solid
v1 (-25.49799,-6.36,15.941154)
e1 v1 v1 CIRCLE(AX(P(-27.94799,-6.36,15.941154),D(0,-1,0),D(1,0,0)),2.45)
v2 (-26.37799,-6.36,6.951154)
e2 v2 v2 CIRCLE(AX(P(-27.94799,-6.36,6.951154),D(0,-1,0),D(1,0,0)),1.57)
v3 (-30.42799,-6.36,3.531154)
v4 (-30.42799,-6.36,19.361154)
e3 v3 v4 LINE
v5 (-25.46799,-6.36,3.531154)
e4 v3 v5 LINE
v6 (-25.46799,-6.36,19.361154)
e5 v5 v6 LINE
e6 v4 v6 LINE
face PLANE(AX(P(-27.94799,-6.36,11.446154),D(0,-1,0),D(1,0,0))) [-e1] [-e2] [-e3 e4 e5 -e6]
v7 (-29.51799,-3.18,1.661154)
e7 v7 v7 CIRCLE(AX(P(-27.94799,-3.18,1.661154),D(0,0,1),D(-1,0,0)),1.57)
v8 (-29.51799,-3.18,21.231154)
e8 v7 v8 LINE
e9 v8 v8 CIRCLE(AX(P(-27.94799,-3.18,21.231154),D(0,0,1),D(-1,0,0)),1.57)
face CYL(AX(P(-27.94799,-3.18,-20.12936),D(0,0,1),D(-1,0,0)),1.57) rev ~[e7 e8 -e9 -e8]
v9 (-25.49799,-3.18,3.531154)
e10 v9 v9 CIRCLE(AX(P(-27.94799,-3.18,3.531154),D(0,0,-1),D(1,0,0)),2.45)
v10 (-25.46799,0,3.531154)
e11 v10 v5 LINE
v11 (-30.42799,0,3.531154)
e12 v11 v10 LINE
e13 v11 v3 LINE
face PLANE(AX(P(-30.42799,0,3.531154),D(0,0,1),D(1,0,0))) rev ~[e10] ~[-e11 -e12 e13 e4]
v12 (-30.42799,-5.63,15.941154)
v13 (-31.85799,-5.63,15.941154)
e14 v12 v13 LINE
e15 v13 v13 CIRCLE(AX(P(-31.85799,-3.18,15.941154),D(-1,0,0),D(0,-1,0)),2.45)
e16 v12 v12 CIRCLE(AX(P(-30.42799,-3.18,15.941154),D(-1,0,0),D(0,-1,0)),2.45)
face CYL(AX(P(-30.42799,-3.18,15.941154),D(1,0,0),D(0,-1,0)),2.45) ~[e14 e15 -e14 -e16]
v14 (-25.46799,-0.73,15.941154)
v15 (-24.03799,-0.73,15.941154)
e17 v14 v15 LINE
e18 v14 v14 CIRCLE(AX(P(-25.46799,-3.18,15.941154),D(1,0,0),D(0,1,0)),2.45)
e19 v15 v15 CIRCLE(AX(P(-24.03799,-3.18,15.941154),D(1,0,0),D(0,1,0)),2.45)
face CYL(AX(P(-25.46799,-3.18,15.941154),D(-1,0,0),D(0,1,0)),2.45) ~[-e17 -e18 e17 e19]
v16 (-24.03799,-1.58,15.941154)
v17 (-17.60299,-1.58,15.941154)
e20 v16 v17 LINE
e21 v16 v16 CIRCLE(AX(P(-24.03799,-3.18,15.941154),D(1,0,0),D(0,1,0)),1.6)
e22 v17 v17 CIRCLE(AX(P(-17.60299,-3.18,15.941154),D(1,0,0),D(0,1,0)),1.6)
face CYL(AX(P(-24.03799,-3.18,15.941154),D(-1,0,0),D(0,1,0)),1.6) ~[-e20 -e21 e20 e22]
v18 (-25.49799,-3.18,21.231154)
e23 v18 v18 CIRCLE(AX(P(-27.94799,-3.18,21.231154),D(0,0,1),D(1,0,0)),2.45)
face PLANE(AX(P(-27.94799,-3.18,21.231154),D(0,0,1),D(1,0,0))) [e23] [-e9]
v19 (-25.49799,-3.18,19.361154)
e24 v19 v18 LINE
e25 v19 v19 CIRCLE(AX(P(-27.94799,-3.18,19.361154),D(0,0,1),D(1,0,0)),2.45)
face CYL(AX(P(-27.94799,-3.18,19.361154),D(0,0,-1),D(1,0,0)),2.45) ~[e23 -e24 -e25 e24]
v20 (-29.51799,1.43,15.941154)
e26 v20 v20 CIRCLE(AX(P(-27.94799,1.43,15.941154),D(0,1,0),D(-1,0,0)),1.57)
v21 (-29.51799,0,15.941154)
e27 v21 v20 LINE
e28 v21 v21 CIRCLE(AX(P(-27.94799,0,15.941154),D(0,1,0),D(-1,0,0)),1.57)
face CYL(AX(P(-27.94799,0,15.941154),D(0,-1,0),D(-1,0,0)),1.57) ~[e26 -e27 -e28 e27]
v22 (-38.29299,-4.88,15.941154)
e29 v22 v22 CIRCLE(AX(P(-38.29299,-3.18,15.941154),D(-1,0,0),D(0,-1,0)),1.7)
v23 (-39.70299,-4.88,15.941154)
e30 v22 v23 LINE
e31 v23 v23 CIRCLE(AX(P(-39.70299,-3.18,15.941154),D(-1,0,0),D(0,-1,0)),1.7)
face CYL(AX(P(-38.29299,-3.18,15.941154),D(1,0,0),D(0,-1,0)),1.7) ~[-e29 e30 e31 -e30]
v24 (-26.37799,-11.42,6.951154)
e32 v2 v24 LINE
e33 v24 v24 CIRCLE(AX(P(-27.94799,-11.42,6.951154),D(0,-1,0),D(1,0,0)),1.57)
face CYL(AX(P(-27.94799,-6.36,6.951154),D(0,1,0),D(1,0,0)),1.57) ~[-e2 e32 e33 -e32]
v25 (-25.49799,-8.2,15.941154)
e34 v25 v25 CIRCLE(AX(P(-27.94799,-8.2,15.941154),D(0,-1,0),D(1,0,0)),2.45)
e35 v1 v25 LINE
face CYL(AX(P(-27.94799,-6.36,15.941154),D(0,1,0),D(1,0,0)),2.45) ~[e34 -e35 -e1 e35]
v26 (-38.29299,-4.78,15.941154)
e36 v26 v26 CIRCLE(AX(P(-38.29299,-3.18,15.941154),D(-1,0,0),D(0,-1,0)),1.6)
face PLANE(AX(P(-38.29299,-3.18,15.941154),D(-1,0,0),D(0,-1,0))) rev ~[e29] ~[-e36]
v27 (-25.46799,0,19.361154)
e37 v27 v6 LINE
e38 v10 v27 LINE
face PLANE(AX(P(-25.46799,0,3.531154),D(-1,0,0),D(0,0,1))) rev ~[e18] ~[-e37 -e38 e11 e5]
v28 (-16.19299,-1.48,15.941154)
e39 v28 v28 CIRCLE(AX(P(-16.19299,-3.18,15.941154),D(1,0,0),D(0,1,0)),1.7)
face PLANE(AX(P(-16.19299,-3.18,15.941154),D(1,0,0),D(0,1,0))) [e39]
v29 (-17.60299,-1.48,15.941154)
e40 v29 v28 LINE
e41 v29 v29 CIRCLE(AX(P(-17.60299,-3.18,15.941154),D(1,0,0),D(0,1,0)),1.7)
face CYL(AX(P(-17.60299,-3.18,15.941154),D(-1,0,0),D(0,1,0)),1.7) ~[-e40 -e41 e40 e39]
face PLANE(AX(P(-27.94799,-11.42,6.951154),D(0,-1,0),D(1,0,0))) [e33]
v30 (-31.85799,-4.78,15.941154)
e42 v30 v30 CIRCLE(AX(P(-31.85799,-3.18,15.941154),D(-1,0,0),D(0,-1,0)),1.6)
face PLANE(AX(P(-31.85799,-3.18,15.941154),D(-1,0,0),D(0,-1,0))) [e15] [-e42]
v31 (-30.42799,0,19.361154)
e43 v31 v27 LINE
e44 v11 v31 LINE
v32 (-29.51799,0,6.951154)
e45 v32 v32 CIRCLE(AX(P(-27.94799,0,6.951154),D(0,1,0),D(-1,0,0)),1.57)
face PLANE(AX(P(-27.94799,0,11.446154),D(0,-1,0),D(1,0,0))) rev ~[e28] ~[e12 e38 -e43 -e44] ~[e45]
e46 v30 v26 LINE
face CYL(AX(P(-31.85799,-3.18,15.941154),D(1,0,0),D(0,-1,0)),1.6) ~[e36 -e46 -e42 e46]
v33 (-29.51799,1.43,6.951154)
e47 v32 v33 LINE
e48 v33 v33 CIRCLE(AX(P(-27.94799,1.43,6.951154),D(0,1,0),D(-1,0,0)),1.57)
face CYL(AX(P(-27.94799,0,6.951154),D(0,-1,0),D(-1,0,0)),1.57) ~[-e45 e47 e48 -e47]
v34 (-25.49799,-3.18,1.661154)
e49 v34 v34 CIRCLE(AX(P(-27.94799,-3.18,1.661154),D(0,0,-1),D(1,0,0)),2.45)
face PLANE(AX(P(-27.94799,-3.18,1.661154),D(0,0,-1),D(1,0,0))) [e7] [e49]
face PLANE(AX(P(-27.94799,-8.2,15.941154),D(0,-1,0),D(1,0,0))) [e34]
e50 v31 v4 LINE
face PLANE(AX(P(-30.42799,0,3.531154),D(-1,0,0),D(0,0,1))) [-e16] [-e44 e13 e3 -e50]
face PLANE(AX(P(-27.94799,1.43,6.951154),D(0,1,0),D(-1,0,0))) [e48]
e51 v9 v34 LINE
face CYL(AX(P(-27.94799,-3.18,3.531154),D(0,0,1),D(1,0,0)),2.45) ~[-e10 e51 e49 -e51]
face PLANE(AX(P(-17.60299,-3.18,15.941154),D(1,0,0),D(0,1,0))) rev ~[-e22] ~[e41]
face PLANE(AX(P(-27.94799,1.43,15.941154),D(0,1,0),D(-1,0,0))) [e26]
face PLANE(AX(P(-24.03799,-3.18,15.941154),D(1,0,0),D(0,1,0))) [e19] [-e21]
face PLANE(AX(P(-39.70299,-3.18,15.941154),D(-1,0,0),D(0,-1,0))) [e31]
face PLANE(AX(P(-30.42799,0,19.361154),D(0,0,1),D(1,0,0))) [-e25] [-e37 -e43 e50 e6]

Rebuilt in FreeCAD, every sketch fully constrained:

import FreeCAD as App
import Part
import Sketcher
from FreeCAD import Vector


def add_polygon(sketch, points):
    """Adds a closed chain of lines whose ends are joined by coincident constraints."""
    first, n = sketch.GeometryCount, len(points)
    for a, b in zip(points, points[1:] + points[:1]):
        sketch.addGeometry(Part.LineSegment(App.Vector(*a, 0), App.Vector(*b, 0)), False)
    for i in range(n):
        sketch.addConstraint(Sketcher.Constraint("Coincident", first + i, 2, first + (i + 1) % n, 1))

doc = App.newDocument("Part")
params = doc.addObject("Spreadsheet::Sheet", "Params")
for row, (alias, value) in enumerate([
    ("sketch1_width", "4.96 mm"),
    ("sketch1_height", "15.83 mm"),
    ("pad1_length", "6.36 mm"),
    ("sketch2_diameter", "4.9 mm"),
    ("pad2_length", "1.84 mm"),
    ("sketch3_diameter", "4.9 mm"),
    ("pad3_length", "1.87 mm"),
    ("sketch4_diameter", "4.9 mm"),
    ("pad4_length", "1.87 mm"),
    ("sketch5_diameter", "3.14 mm"),
    ("hole_diameter", "3.14 mm"),
    ("sketch6_diameter", "4.9 mm"),
    ("pad5_length", "1.43 mm"),
    ("sketch7_diameter", "4.9 mm"),
    ("pad6_length", "1.43 mm"),
    ("sketch8_diameter", "3.14 mm"),
    ("pad7_length", "5.06 mm"),
    ("sketch9_diameter", "3.14 mm"),
    ("pad8_length", "1.43 mm"),
    ("sketch10_diameter", "3.2 mm"),
    ("pad9_length", "6.435 mm"),
    ("sketch11_diameter", "3.4 mm"),
    ("pad10_length", "1.41 mm"),
    ("sketch12_diameter", "3.2 mm"),
    ("pad11_length", "6.435 mm"),
    ("sketch13_diameter", "3.4 mm"),
    ("pad12_length", "1.41 mm"),
], start=1):
    params.set(f"A{row}", alias)
    params.set(f"B{row}", "=" + value)
    params.setAlias(f"B{row}", alias)

body = doc.addObject("PartDesign::Body", "Body")

# Sketch on XZ plane
sketch1 = doc.addObject("Sketcher::SketchObject", "Sketch")
body.addObject(sketch1)
sketch1.AttachmentSupport = (doc.XZ_Plane, [""])
sketch1.MapMode = "FlatFace"
add_polygon(sketch1, [(-30.4, 19.4), (-30.4, 3.5), (-25.5, 3.5), (-25.5, 19.4)])  # lines 0-3
sketch1.addConstraint([
    Sketcher.Constraint("Vertical", 0),
    Sketcher.Constraint("Horizontal", 1),
    Sketcher.Constraint("Vertical", 2),
    Sketcher.Constraint("Horizontal", 3),
    Sketcher.Constraint("DistanceX", 1, 1, 1, 2, 4.96),
    Sketcher.Constraint("DistanceY", 0, 2, 0, 1, 15.83),
    Sketcher.Constraint("DistanceX", 0, 2, -1, 1, 30.42799),
    Sketcher.Constraint("DistanceY", -1, 1, 0, 2, 3.531154),
])
sketch1.setExpression("Constraints[8]", "Params.sketch1_width")
sketch1.setExpression("Constraints[9]", "Params.sketch1_height")
pad1 = doc.addObject("PartDesign::Pad", "Pad")
body.addObject(pad1)
pad1.Profile = sketch1
pad1.setExpression("Length", "Params.pad1_length")

# Sketch on XZ plane
sketch2 = doc.addObject("Sketcher::SketchObject", "Sketch001")
body.addObject(sketch2)
sketch2.AttachmentSupport = (doc.XZ_Plane, [""])
sketch2.MapMode = "FlatFace"
sketch2.AttachmentOffset = App.Placement(Vector(0, 0, 6.36), App.Rotation())
sketch2.addGeometry(Part.Circle(Vector(-27.9, 15.9, 0), Vector(0, 0, 1), 2.5), False)
sketch2.addConstraint([
    Sketcher.Constraint("Diameter", 0, 4.9),
    Sketcher.Constraint("DistanceX", 0, 3, -1, 1, 27.94799),
    Sketcher.Constraint("DistanceY", -1, 1, 0, 3, 15.941154),
])
sketch2.setExpression("Constraints[0]", "Params.sketch2_diameter")
pad2 = doc.addObject("PartDesign::Pad", "Pad001")
body.addObject(pad2)
pad2.Profile = sketch2
pad2.setExpression("Length", "Params.pad2_length")

# Sketch on XY plane
sketch3 = doc.addObject("Sketcher::SketchObject", "Sketch002")
body.addObject(sketch3)
sketch3.AttachmentSupport = (doc.XY_Plane, [""])
sketch3.MapMode = "FlatFace"
sketch3.AttachmentOffset = App.Placement(Vector(0, 0, 19.361154), App.Rotation())
sketch3.addGeometry(Part.Circle(Vector(-27.9, -3.2, 0), Vector(0, 0, 1), 2.5), False)
sketch3.addConstraint([
    Sketcher.Constraint("Diameter", 0, 4.9),
    Sketcher.Constraint("DistanceY", 0, 3, -1, 1, 3.18),
    Sketcher.Constraint("DistanceX", 0, 3, -1, 1, 27.94799),
])
sketch3.setExpression("Constraints[0]", "Params.sketch3_diameter")
pad3 = doc.addObject("PartDesign::Pad", "Pad002")
body.addObject(pad3)
pad3.Profile = sketch3
pad3.setExpression("Length", "Params.pad3_length")

# Sketch on XY plane
sketch4 = doc.addObject("Sketcher::SketchObject", "Sketch003")
body.addObject(sketch4)
sketch4.AttachmentSupport = (doc.XY_Plane, [""])
sketch4.MapMode = "FlatFace"
sketch4.AttachmentOffset = App.Placement(Vector(0, 0, 3.531154), App.Rotation())
sketch4.addGeometry(Part.Circle(Vector(-27.9, -3.2, 0), Vector(0, 0, 1), 2.5), False)
sketch4.addConstraint([
    Sketcher.Constraint("Diameter", 0, 4.9),
    Sketcher.Constraint("DistanceY", 0, 3, -1, 1, 3.18),
    Sketcher.Constraint("DistanceX", 0, 3, -1, 1, 27.94799),
])
sketch4.setExpression("Constraints[0]", "Params.sketch4_diameter")
pad4 = doc.addObject("PartDesign::Pad", "Pad003")
body.addObject(pad4)
pad4.Profile = sketch4
pad4.setExpression("Length", "Params.pad4_length")
pad4.Reversed = True

# Sketch on XY plane
sketch5 = doc.addObject("Sketcher::SketchObject", "Sketch004")
body.addObject(sketch5)
sketch5.AttachmentSupport = (doc.XY_Plane, [""])
sketch5.MapMode = "FlatFace"
sketch5.AttachmentOffset = App.Placement(Vector(0, 0, 1.661154), App.Rotation())
sketch5.addGeometry(Part.Circle(Vector(-27.9, -3.2, 0), Vector(0, 0, 1), 1.6), False)
sketch5.addConstraint([
    Sketcher.Constraint("Diameter", 0, 3.14),
    Sketcher.Constraint("DistanceY", 0, 3, -1, 1, 3.18),
    Sketcher.Constraint("DistanceX", 0, 3, -1, 1, 27.94799),
])
sketch5.setExpression("Constraints[0]", "Params.sketch5_diameter")
doc.recompute()
hole = doc.addObject("PartDesign::Hole", "Hole")
body.addObject(hole)
hole.Profile = sketch5
hole.ThreadType = "None"
hole.setExpression("Diameter", "Params.hole_diameter")
hole.DepthType = "ThroughAll"
hole.Reversed = True

# Sketch on YZ plane
sketch6 = doc.addObject("Sketcher::SketchObject", "Sketch005")
body.addObject(sketch6)
sketch6.AttachmentSupport = (doc.YZ_Plane, [""])
sketch6.MapMode = "FlatFace"
sketch6.AttachmentOffset = App.Placement(Vector(0, 0, -25.46799), App.Rotation())
sketch6.addGeometry(Part.Circle(Vector(-3.2, 15.9, 0), Vector(0, 0, 1), 2.5), False)
sketch6.addConstraint([
    Sketcher.Constraint("Diameter", 0, 4.9),
    Sketcher.Constraint("DistanceX", 0, 3, -1, 1, 3.18),
    Sketcher.Constraint("DistanceY", -1, 1, 0, 3, 15.941154),
])
sketch6.setExpression("Constraints[0]", "Params.sketch6_diameter")
pad5 = doc.addObject("PartDesign::Pad", "Pad004")
body.addObject(pad5)
pad5.Profile = sketch6
pad5.setExpression("Length", "Params.pad5_length")

# Sketch on YZ plane
sketch7 = doc.addObject("Sketcher::SketchObject", "Sketch006")
body.addObject(sketch7)
sketch7.AttachmentSupport = (doc.YZ_Plane, [""])
sketch7.MapMode = "FlatFace"
sketch7.AttachmentOffset = App.Placement(Vector(0, 0, -30.42799), App.Rotation())
sketch7.addGeometry(Part.Circle(Vector(-3.2, 15.9, 0), Vector(0, 0, 1), 2.5), False)
sketch7.addConstraint([
    Sketcher.Constraint("Diameter", 0, 4.9),
    Sketcher.Constraint("DistanceX", 0, 3, -1, 1, 3.18),
    Sketcher.Constraint("DistanceY", -1, 1, 0, 3, 15.941154),
])
sketch7.setExpression("Constraints[0]", "Params.sketch7_diameter")
pad6 = doc.addObject("PartDesign::Pad", "Pad005")
body.addObject(pad6)
pad6.Profile = sketch7
pad6.setExpression("Length", "Params.pad6_length")
pad6.Reversed = True

# Sketch on XZ plane
sketch8 = doc.addObject("Sketcher::SketchObject", "Sketch007")
body.addObject(sketch8)
sketch8.AttachmentSupport = (doc.XZ_Plane, [""])
sketch8.MapMode = "FlatFace"
sketch8.AttachmentOffset = App.Placement(Vector(0, 0, 6.36), App.Rotation())
sketch8.addGeometry(Part.Circle(Vector(-27.9, 7, 0), Vector(0, 0, 1), 1.6), False)
sketch8.addConstraint([
    Sketcher.Constraint("Diameter", 0, 3.14),
    Sketcher.Constraint("DistanceX", 0, 3, -1, 1, 27.94799),
    Sketcher.Constraint("DistanceY", -1, 1, 0, 3, 6.951154),
])
sketch8.setExpression("Constraints[0]", "Params.sketch8_diameter")
pad7 = doc.addObject("PartDesign::Pad", "Pad006")
body.addObject(pad7)
pad7.Profile = sketch8
pad7.setExpression("Length", "Params.pad7_length")

# Sketch on XZ plane
sketch9 = doc.addObject("Sketcher::SketchObject", "Sketch008")
body.addObject(sketch9)
sketch9.AttachmentSupport = (doc.XZ_Plane, [""])
sketch9.MapMode = "FlatFace"
sketch9.addGeometry([
    Part.Circle(Vector(-27.9, 15.9, 0), Vector(0, 0, 1), 1.6),
    Part.Circle(Vector(-27.9, 7, 0), Vector(0, 0, 1), 1.6),
], False)
sketch9.addConstraint([
    Sketcher.Constraint("Equal", 0, 1),
    Sketcher.Constraint("Vertical", 0, 3, 1, 3),
    Sketcher.Constraint("Diameter", 0, 3.14),
    Sketcher.Constraint("DistanceY", 1, 3, 0, 3, 8.99),
    Sketcher.Constraint("DistanceX", 0, 3, -1, 1, 27.94799),
    Sketcher.Constraint("DistanceY", -1, 1, 0, 3, 15.941154),
])
sketch9.setExpression("Constraints[2]", "Params.sketch9_diameter")
pad8 = doc.addObject("PartDesign::Pad", "Pad007")
body.addObject(pad8)
pad8.Profile = sketch9
pad8.setExpression("Length", "Params.pad8_length")
pad8.Reversed = True

# Sketch on YZ plane
sketch10 = doc.addObject("Sketcher::SketchObject", "Sketch009")
body.addObject(sketch10)
sketch10.AttachmentSupport = (doc.YZ_Plane, [""])
sketch10.MapMode = "FlatFace"
sketch10.AttachmentOffset = App.Placement(Vector(0, 0, -31.85799), App.Rotation())
sketch10.addGeometry(Part.Circle(Vector(-3.2, 15.9, 0), Vector(0, 0, 1), 1.6), False)
sketch10.addConstraint([
    Sketcher.Constraint("Diameter", 0, 3.2),
    Sketcher.Constraint("DistanceX", 0, 3, -1, 1, 3.18),
    Sketcher.Constraint("DistanceY", -1, 1, 0, 3, 15.941154),
])
sketch10.setExpression("Constraints[0]", "Params.sketch10_diameter")
pad9 = doc.addObject("PartDesign::Pad", "Pad008")
body.addObject(pad9)
pad9.Profile = sketch10
pad9.setExpression("Length", "Params.pad9_length")
pad9.Reversed = True

# Sketch on YZ plane
sketch11 = doc.addObject("Sketcher::SketchObject", "Sketch010")
body.addObject(sketch11)
sketch11.AttachmentSupport = (doc.YZ_Plane, [""])
sketch11.MapMode = "FlatFace"
sketch11.AttachmentOffset = App.Placement(Vector(0, 0, -38.29299), App.Rotation())
sketch11.addGeometry(Part.Circle(Vector(-3.2, 15.9, 0), Vector(0, 0, 1), 1.7), False)
sketch11.addConstraint([
    Sketcher.Constraint("Diameter", 0, 3.4),
    Sketcher.Constraint("DistanceX", 0, 3, -1, 1, 3.18),
    Sketcher.Constraint("DistanceY", -1, 1, 0, 3, 15.941154),
])
sketch11.setExpression("Constraints[0]", "Params.sketch11_diameter")
pad10 = doc.addObject("PartDesign::Pad", "Pad009")
body.addObject(pad10)
pad10.Profile = sketch11
pad10.setExpression("Length", "Params.pad10_length")
pad10.Reversed = True

# Sketch on YZ plane
sketch12 = doc.addObject("Sketcher::SketchObject", "Sketch011")
body.addObject(sketch12)
sketch12.AttachmentSupport = (doc.YZ_Plane, [""])
sketch12.MapMode = "FlatFace"
sketch12.AttachmentOffset = App.Placement(Vector(0, 0, -24.03799), App.Rotation())
sketch12.addGeometry(Part.Circle(Vector(-3.2, 15.9, 0), Vector(0, 0, 1), 1.6), False)
sketch12.addConstraint([
    Sketcher.Constraint("Diameter", 0, 3.2),
    Sketcher.Constraint("DistanceX", 0, 3, -1, 1, 3.18),
    Sketcher.Constraint("DistanceY", -1, 1, 0, 3, 15.941154),
])
sketch12.setExpression("Constraints[0]", "Params.sketch12_diameter")
pad11 = doc.addObject("PartDesign::Pad", "Pad010")
body.addObject(pad11)
pad11.Profile = sketch12
pad11.setExpression("Length", "Params.pad11_length")

# Sketch on YZ plane
sketch13 = doc.addObject("Sketcher::SketchObject", "Sketch012")
body.addObject(sketch13)
sketch13.AttachmentSupport = (doc.YZ_Plane, [""])
sketch13.MapMode = "FlatFace"
sketch13.AttachmentOffset = App.Placement(Vector(0, 0, -17.60299), App.Rotation())
sketch13.addGeometry(Part.Circle(Vector(-3.2, 15.9, 0), Vector(0, 0, 1), 1.7), False)
sketch13.addConstraint([
    Sketcher.Constraint("Diameter", 0, 3.4),
    Sketcher.Constraint("DistanceX", 0, 3, -1, 1, 3.18),
    Sketcher.Constraint("DistanceY", -1, 1, 0, 3, 15.941154),
])
sketch13.setExpression("Constraints[0]", "Params.sketch13_diameter")
pad12 = doc.addObject("PartDesign::Pad", "Pad011")
body.addObject(pad12)
pad12.Profile = sketch13
pad12.setExpression("Length", "Params.pad12_length")

doc.recompute()
